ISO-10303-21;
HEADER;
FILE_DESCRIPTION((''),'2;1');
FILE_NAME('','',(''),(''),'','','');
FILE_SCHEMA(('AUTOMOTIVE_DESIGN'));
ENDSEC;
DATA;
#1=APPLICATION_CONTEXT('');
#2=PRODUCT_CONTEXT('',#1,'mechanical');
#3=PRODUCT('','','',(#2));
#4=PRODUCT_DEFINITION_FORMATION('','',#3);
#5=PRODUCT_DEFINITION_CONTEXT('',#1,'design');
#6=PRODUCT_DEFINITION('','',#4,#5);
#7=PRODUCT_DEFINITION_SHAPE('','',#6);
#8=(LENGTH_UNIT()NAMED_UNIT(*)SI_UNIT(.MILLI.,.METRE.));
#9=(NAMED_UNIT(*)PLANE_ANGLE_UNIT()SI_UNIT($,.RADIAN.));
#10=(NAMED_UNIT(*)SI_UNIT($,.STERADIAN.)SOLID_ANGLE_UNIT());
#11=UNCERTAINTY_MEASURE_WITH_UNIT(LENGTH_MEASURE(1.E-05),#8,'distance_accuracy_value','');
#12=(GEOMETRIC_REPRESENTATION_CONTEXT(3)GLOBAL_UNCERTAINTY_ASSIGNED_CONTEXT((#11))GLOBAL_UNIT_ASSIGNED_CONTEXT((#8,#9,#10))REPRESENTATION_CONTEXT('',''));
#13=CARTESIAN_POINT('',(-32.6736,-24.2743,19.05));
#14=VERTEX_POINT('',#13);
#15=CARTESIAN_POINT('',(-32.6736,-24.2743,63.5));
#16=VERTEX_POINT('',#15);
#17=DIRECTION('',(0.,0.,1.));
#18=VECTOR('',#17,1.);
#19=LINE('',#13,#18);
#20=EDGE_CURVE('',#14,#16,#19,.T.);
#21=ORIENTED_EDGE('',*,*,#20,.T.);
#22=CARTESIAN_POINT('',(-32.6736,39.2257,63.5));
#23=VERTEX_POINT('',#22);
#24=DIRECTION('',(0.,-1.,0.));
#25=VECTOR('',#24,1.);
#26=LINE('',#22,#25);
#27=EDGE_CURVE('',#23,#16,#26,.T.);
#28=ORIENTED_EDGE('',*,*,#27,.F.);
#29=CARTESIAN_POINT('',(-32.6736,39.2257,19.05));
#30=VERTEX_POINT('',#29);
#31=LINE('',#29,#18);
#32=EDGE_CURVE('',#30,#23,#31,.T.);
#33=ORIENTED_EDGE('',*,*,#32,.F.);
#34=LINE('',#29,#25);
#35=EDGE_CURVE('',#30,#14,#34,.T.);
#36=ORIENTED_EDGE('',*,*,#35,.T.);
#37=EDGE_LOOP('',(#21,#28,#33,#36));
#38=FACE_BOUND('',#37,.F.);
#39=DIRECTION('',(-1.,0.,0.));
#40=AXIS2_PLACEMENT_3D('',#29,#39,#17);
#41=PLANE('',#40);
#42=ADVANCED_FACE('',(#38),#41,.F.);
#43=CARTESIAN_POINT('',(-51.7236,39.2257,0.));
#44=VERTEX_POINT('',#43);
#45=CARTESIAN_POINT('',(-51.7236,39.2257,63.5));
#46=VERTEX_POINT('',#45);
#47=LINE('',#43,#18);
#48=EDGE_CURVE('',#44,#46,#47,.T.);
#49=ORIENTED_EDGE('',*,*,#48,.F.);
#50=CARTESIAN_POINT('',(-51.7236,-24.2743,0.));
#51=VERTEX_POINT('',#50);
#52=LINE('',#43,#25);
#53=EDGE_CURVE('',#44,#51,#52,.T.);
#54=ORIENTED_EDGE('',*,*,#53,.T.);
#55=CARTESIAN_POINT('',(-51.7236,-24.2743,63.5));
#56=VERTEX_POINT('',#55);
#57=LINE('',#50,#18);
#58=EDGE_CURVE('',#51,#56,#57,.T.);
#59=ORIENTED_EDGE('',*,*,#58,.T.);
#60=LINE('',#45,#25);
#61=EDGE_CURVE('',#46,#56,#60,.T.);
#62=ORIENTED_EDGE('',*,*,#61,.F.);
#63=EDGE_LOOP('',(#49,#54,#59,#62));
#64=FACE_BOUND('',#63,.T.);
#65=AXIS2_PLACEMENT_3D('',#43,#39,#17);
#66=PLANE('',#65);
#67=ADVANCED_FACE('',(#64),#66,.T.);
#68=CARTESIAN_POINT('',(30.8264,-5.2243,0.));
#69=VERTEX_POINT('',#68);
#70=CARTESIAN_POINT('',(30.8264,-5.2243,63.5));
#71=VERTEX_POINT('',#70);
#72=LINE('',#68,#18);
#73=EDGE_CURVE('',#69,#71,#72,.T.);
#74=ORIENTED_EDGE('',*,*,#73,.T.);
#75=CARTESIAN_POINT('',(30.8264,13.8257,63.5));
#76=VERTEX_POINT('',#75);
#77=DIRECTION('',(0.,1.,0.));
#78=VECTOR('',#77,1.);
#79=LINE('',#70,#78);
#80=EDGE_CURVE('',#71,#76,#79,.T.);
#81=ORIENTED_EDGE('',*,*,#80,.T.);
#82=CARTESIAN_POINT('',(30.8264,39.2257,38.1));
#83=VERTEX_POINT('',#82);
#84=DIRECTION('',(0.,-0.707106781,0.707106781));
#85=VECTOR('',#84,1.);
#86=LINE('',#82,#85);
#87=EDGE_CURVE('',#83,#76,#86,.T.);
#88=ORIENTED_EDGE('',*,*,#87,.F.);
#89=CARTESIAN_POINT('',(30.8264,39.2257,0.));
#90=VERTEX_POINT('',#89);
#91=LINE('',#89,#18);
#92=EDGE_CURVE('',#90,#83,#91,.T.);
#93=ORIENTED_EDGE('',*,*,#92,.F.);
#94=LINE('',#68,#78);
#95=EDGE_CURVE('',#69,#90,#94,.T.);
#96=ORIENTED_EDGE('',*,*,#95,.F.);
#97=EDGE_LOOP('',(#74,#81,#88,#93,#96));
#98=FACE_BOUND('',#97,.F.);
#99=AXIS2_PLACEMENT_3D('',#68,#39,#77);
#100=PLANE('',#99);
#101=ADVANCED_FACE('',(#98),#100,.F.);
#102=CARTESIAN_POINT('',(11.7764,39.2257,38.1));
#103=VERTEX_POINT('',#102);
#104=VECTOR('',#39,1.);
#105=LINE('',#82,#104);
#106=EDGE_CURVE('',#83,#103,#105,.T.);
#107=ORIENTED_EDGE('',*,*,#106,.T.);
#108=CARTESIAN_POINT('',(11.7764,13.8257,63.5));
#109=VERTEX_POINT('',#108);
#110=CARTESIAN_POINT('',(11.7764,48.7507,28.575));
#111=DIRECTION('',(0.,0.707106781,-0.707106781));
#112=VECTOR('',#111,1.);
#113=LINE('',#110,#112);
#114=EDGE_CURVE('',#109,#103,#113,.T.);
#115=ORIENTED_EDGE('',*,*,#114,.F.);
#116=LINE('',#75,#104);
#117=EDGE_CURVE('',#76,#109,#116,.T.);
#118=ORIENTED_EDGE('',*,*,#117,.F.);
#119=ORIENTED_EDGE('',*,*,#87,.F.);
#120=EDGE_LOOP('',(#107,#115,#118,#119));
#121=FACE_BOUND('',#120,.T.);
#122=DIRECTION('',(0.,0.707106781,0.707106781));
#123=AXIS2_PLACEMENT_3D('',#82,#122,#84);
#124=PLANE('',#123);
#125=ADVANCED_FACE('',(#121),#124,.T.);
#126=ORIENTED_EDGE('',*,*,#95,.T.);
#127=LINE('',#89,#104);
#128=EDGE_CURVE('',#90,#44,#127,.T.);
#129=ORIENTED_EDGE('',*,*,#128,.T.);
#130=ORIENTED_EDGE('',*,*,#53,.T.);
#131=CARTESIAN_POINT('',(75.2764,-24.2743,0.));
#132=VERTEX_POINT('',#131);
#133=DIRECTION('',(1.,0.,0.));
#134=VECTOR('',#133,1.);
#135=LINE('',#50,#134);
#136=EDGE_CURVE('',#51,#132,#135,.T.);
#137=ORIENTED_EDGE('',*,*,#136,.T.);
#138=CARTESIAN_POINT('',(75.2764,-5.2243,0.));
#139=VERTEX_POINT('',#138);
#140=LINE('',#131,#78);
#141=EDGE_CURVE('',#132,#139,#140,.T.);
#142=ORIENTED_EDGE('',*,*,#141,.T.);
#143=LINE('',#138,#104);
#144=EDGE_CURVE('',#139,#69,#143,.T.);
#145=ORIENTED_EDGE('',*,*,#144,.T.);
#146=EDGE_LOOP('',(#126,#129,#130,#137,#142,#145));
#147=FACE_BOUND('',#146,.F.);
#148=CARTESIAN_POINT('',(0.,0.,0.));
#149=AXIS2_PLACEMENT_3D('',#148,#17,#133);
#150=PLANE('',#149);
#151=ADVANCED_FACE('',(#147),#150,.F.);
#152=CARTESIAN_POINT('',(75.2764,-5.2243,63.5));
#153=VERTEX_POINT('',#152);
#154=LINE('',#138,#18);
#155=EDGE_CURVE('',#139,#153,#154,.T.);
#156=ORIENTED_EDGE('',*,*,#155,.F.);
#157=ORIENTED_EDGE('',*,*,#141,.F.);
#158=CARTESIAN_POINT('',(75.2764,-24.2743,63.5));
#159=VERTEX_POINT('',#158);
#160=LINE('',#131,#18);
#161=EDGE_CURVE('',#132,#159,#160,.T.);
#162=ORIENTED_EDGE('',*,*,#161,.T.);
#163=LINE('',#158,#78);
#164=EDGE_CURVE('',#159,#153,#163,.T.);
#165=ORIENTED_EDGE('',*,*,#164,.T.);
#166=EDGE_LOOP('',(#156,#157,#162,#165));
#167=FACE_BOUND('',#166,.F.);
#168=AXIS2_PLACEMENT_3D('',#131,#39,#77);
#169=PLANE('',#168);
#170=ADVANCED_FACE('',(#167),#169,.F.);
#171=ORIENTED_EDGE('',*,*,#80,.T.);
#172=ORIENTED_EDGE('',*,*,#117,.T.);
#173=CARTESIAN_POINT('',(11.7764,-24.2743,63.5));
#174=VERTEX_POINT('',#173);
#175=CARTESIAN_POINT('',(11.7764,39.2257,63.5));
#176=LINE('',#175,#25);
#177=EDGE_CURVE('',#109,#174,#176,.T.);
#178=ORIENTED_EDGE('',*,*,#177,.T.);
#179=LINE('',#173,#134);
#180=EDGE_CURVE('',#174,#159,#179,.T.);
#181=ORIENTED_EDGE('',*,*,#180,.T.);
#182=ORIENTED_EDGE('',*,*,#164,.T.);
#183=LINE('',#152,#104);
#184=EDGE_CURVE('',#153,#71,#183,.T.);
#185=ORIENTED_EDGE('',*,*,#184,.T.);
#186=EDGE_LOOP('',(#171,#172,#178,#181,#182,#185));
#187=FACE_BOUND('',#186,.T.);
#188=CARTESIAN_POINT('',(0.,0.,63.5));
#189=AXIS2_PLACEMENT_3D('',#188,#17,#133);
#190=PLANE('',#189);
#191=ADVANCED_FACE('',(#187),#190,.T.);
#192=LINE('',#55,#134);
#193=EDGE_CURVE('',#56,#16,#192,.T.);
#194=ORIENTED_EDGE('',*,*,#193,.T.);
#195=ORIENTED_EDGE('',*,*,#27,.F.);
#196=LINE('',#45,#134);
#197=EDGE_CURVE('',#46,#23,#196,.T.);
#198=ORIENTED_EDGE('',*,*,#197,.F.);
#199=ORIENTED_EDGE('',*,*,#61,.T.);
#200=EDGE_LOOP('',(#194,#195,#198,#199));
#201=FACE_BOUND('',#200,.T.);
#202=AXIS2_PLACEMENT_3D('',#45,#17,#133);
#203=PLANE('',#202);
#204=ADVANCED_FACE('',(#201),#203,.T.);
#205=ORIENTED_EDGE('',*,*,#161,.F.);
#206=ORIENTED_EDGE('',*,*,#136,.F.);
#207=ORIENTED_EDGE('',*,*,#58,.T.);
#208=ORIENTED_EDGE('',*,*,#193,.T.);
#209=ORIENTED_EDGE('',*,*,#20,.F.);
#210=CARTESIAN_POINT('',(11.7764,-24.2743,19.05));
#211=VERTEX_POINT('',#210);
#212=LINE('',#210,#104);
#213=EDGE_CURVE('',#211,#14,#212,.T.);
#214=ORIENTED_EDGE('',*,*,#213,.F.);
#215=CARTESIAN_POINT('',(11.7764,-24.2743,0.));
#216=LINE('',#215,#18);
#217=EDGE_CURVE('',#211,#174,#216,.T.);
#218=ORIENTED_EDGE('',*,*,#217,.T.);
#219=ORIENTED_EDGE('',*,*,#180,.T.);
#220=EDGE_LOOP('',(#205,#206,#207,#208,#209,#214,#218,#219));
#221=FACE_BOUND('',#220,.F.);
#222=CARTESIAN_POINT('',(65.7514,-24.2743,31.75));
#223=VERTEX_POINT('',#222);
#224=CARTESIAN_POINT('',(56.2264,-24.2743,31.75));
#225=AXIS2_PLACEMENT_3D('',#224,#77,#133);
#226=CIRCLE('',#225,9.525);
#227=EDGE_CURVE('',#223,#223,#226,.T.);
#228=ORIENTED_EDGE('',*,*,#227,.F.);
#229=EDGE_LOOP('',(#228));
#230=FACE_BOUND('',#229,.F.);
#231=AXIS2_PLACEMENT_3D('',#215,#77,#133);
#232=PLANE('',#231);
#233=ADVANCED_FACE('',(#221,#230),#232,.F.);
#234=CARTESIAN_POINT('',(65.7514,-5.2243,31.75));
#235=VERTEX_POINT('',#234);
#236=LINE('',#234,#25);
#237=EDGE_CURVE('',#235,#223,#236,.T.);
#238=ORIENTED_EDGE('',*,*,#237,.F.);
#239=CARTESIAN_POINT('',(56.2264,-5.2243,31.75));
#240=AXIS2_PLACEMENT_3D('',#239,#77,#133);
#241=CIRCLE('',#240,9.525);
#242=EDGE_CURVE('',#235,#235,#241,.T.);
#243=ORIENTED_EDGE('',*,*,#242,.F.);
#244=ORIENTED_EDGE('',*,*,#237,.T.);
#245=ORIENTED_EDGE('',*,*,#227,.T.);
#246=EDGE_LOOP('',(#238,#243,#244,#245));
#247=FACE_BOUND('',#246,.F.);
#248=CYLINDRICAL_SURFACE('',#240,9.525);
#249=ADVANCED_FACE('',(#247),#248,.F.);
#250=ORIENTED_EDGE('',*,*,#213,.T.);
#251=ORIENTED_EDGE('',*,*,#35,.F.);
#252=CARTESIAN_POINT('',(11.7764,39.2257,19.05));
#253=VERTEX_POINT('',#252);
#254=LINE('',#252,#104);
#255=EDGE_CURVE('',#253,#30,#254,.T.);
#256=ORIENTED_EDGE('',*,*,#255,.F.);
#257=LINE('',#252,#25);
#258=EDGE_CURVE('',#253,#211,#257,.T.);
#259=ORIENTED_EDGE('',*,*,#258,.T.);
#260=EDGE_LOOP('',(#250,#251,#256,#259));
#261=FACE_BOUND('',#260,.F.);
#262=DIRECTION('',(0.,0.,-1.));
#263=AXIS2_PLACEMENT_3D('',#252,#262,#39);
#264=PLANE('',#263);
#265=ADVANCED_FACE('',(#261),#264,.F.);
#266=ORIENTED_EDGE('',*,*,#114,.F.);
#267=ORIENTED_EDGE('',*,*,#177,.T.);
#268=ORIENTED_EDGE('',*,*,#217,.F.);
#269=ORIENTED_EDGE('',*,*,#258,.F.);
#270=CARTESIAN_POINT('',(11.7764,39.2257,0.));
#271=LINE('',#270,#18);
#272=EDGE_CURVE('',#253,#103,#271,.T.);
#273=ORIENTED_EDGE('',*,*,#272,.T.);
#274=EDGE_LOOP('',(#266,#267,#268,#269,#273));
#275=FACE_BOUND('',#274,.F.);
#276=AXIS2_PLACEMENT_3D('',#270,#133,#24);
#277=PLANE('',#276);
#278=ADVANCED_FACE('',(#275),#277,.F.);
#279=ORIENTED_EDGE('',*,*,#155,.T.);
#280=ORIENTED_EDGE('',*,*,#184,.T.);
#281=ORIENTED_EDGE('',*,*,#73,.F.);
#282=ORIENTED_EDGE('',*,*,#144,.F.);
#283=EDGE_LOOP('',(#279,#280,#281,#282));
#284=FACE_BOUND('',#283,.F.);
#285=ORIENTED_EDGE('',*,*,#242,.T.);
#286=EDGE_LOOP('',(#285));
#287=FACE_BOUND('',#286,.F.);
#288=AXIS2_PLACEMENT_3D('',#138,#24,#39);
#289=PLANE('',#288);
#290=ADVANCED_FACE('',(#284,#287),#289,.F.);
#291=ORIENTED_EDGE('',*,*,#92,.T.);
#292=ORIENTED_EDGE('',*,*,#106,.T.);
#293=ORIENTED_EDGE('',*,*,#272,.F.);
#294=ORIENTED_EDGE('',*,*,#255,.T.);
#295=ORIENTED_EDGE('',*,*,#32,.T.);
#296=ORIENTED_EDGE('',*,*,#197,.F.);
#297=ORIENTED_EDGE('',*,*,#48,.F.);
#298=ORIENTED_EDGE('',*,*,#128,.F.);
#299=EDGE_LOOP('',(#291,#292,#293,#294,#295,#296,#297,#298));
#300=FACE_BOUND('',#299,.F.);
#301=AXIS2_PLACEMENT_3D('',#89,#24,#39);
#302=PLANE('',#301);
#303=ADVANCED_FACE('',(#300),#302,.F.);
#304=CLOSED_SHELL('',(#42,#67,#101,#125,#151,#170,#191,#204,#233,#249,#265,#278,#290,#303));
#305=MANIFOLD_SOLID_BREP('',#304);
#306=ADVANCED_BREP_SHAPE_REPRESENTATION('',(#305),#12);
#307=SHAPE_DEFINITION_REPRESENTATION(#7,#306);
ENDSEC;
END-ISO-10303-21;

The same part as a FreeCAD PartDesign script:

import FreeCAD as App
import Part
import Sketcher

V = App.Vector
Q = App.Units.Quantity

doc = App.newDocument("Part")
body = doc.addObject("PartDesign::Body", "Body")

sketch1 = doc.addObject("Sketcher::SketchObject", "Sketch")
body.addObject(sketch1)
sketch1.AttachmentSupport = (doc.XY_Plane, [""])
sketch1.MapMode = "FlatFace"
sketch1.addGeometry([
    Part.LineSegment(V(12, 39, 0), V(12, -24, 0)),
    Part.LineSegment(V(12, -24, 0), V(75, -24, 0)),
    Part.LineSegment(V(75, -24, 0), V(75, -5, 0)),
    Part.LineSegment(V(75, -5, 0), V(31, -5, 0)),
    Part.LineSegment(V(31, -5, 0), V(31, 39, 0)),
    Part.LineSegment(V(31, 39, 0), V(12, 39, 0)),
], False)
sketch1.addConstraint([
    Sketcher.Constraint("Coincident", 0, 2, 1, 1),
    Sketcher.Constraint("Coincident", 1, 2, 2, 1),
    Sketcher.Constraint("Coincident", 2, 2, 3, 1),
    Sketcher.Constraint("Coincident", 3, 2, 4, 1),
    Sketcher.Constraint("Coincident", 4, 2, 5, 1),
    Sketcher.Constraint("Coincident", 5, 2, 0, 1),
    Sketcher.Constraint("Vertical", 0),
    Sketcher.Constraint("Horizontal", 1),
    Sketcher.Constraint("Vertical", 2),
    Sketcher.Constraint("Horizontal", 3),
    Sketcher.Constraint("Vertical", 4),
    Sketcher.Constraint("Horizontal", 5),
    Sketcher.Constraint("Equal", 1, 0),
    Sketcher.Constraint("Equal", 5, 2),
    Sketcher.Constraint("DistanceX", 1, 1, 1, 2, Q("2.5 in")),
    Sketcher.Constraint("DistanceX", 5, 2, 5, 1, Q("0.75 in")),
    Sketcher.Constraint("DistanceX", -1, 1, 0, 2, Q("11.7764 mm")),
    Sketcher.Constraint("DistanceY", 0, 2, -1, 1, Q("24.2743 mm")),
])
pad1 = doc.addObject("PartDesign::Pad", "Pad")
body.addObject(pad1)
pad1.Profile = sketch1
pad1.Length = Q("2.5 in")

sketch2 = doc.addObject("Sketcher::SketchObject", "Sketch001")
body.addObject(sketch2)
sketch2.AttachmentSupport = (doc.XZ_Plane, [""])
sketch2.MapMode = "FlatFace"
sketch2.AttachmentOffset = App.Placement(V(0, 0, -39.2257), App.Rotation())
sketch2.addGeometry([
    Part.LineSegment(V(12, 19, 0), V(12, 0, 0)),
    Part.LineSegment(V(12, 0, 0), V(-52, 0, 0)),
    Part.LineSegment(V(-52, 0, 0), V(-52, 64, 0)),
    Part.LineSegment(V(-52, 64, 0), V(-33, 64, 0)),
    Part.LineSegment(V(-33, 64, 0), V(-33, 19, 0)),
    Part.LineSegment(V(-33, 19, 0), V(12, 19, 0)),
], False)
sketch2.addConstraint([
    Sketcher.Constraint("Coincident", 0, 2, 1, 1),
    Sketcher.Constraint("Coincident", 1, 2, 2, 1),
    Sketcher.Constraint("Coincident", 2, 2, 3, 1),
    Sketcher.Constraint("Coincident", 3, 2, 4, 1),
    Sketcher.Constraint("Coincident", 4, 2, 5, 1),
    Sketcher.Constraint("Coincident", 5, 2, 0, 1),
    Sketcher.Constraint("Vertical", 0),
    Sketcher.Constraint("Horizontal", 1),
    Sketcher.Constraint("Vertical", 2),
    Sketcher.Constraint("Horizontal", 3),
    Sketcher.Constraint("Vertical", 4),
    Sketcher.Constraint("Horizontal", 5),
    Sketcher.Constraint("PointOnObject", 0, 2, -1),
    Sketcher.Constraint("Equal", 3, 0),
    Sketcher.Constraint("Equal", 1, 2),
    Sketcher.Constraint("DistanceX", 1, 2, 1, 1, Q("2.5 in")),
    Sketcher.Constraint("DistanceX", 3, 1, 3, 2, Q("0.75 in")),
    Sketcher.Constraint("DistanceX", -1, 1, 0, 2, Q("11.7764 mm")),
])
pad2 = doc.addObject("PartDesign::Pad", "Pad001")
body.addObject(pad2)
pad2.Profile = sketch2
pad2.Length = Q("2.5 in")

sketch3 = doc.addObject("Sketcher::SketchObject", "Sketch002")
body.addObject(sketch3)
sketch3.AttachmentSupport = (doc.XZ_Plane, [""])
sketch3.MapMode = "FlatFace"
sketch3.AttachmentOffset = App.Placement(V(0, 0, 5.2243), App.Rotation())
sketch3.addGeometry(Part.Circle(V(56, 32, 0), V(0, 0, 1), 10), False)
sketch3.addConstraint([
    Sketcher.Constraint("Diameter", 0, Q("0.75 in")),
    Sketcher.Constraint("DistanceY", -1, 1, 0, 3, Q("1.25 in")),
    Sketcher.Constraint("DistanceX", -1, 1, 0, 3, Q("56.2264 mm")),
])
pocket1 = doc.addObject("PartDesign::Pocket", "Pocket")
body.addObject(pocket1)
pocket1.Profile = sketch3
pocket1.Type = "ThroughAll"
pocket1.Reversed = True

sketch4 = doc.addObject("Sketcher::SketchObject", "Sketch003")
body.addObject(sketch4)
sketch4.AttachmentSupport = (doc.YZ_Plane, [""])
sketch4.MapMode = "FlatFace"
sketch4.AttachmentOffset = App.Placement(V(0, 0, 30.8264), App.Rotation())
sketch4.addGeometry([
    Part.LineSegment(V(39, 38, 0), V(39, 64, 0)),
    Part.LineSegment(V(39, 64, 0), V(14, 64, 0)),
    Part.LineSegment(V(14, 64, 0), V(39, 38, 0)),
], False)
sketch4.addConstraint([
    Sketcher.Constraint("Coincident", 0, 2, 1, 1),
    Sketcher.Constraint("Coincident", 1, 2, 2, 1),
    Sketcher.Constraint("Coincident", 2, 2, 0, 1),
    Sketcher.Constraint("Vertical", 0),
    Sketcher.Constraint("Horizontal", 1),
    Sketcher.Constraint("Equal", 1, 0),
    Sketcher.Constraint("DistanceX", 1, 2, 1, 1, Q("1 in")),
    Sketcher.Constraint("DistanceY", -1, 1, 0, 2, Q("2.5 in")),
    Sketcher.Constraint("DistanceX", -1, 1, 0, 2, Q("39.2257 mm")),
])
pocket2 = doc.addObject("PartDesign::Pocket", "Pocket001")
body.addObject(pocket2)
pocket2.Profile = sketch4
pocket2.Type = "UpToFirst"

doc.recompute()
